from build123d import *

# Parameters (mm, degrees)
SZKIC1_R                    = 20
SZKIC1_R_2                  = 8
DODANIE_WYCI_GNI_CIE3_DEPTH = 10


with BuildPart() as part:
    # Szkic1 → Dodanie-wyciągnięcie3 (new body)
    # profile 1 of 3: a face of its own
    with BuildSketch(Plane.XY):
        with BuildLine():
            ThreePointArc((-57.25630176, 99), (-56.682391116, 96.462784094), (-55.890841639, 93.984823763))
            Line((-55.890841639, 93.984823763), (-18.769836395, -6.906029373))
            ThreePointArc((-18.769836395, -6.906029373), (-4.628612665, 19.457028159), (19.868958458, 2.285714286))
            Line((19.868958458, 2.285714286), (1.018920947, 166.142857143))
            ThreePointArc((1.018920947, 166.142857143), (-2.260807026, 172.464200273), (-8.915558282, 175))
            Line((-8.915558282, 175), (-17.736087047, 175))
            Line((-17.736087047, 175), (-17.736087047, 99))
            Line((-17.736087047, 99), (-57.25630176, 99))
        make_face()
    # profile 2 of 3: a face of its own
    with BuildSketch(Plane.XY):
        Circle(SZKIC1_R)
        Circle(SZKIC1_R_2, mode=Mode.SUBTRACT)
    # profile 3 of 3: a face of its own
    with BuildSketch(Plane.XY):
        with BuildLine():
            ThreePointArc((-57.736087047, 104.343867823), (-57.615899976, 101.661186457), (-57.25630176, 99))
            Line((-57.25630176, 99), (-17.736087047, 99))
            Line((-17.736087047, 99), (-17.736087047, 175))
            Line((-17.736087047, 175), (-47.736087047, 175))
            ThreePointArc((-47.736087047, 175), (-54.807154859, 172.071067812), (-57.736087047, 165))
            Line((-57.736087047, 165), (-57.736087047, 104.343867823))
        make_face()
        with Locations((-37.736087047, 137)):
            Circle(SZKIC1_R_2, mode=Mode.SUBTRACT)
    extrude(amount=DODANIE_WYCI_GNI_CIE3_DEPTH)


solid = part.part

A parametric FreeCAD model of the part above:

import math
import FreeCAD as App
import Part
import Sketcher

V = App.Vector

doc = App.newDocument("Part")
body = doc.addObject("PartDesign::Body", "Body")

# Sketch on XY plane
sketch1 = body.newObject("Sketcher::SketchObject", "Sketch")
sketch1.AttachmentSupport = (doc.getObject("XY_Plane"), [""])
sketch1.MapMode = "FlatFace"
sketch1.addGeometry(Part.ArcOfCircle(Part.Circle(V(-27.736087, 104.343868, 0), V(0, 0, 1), 30), math.radians(-169.739206), math.radians(-159.7998)), False)
sketch1.addGeometry(Part.LineSegment(V(-55.890842, 93.984824, 0), V(-18.769836, -6.906029, 0)), False)
sketch1.addGeometry(Part.ArcOfCircle(Part.Circle(V(0, 0, 0), V(0, 0, 1), 20), math.radians(-159.7998), math.radians(6.562428)), False)
sketch1.addGeometry(Part.LineSegment(V(19.868958, 2.285714, 0), V(1.018921, 166.142857, 0)), False)
sketch1.addGeometry(Part.ArcOfCircle(Part.Circle(V(-8.915558, 165, 0), V(0, 0, 1), 10), math.radians(6.562428), math.radians(90)), False)
sketch1.addGeometry(Part.LineSegment(V(-8.915558, 175, 0), V(-47.736087, 175, 0)), False)
sketch1.addGeometry(Part.ArcOfCircle(Part.Circle(V(-47.736087, 165, 0), V(0, 0, 1), 10), math.radians(90), math.radians(180)), False)
sketch1.addGeometry(Part.LineSegment(V(-57.736087, 165, 0), V(-57.736087, 104.343868, 0)), False)
sketch1.addGeometry(Part.ArcOfCircle(Part.Circle(V(-27.736087, 104.343868, 0), V(0, 0, 1), 30), math.radians(-180), math.radians(-169.739206)), False)
sketch1.addGeometry(Part.Circle(V(0, 0, 0), V(0, 0, 1), 8), False)
sketch1.addGeometry(Part.Circle(V(-37.736087, 137, 0), V(0, 0, 1), 8), False)
sketch1.addConstraint(Sketcher.Constraint("Coincident", 0, 2, 1, 1))
sketch1.addConstraint(Sketcher.Constraint("Coincident", 1, 2, 2, 1))
sketch1.addConstraint(Sketcher.Constraint("Coincident", 2, 2, 3, 1))
sketch1.addConstraint(Sketcher.Constraint("Coincident", 3, 2, 4, 1))
sketch1.addConstraint(Sketcher.Constraint("Coincident", 4, 2, 5, 1))
sketch1.addConstraint(Sketcher.Constraint("Coincident", 5, 2, 6, 1))
sketch1.addConstraint(Sketcher.Constraint("Coincident", 6, 2, 7, 1))
sketch1.addConstraint(Sketcher.Constraint("Coincident", 7, 2, 8, 1))
sketch1.addConstraint(Sketcher.Constraint("Coincident", 8, 2, 0, 1))
sketch1.addConstraint(Sketcher.Constraint("Horizontal", 5))
sketch1.addConstraint(Sketcher.Constraint("Vertical", 7))
sketch1.addConstraint(Sketcher.Constraint("Coincident", 2, 3, -1, 1))
sketch1.addConstraint(Sketcher.Constraint("Coincident", 9, 3, -1, 1))
sketch1.addConstraint(Sketcher.Constraint("Coincident", 8, 3, 0, 3))
sketch1.addConstraint(Sketcher.Constraint("Diameter", 9, 16.0))
sketch1.addConstraint(Sketcher.Constraint("Diameter", 10, 16.0))
sketch1.addConstraint(Sketcher.Constraint("Radius", 0, 30.0))
sketch1.addConstraint(Sketcher.Constraint("Radius", 2, 20.0))
sketch1.addConstraint(Sketcher.Constraint("Radius", 4, 10.0))
sketch1.addConstraint(Sketcher.Constraint("Radius", 6, 10.0))
sketch1.addConstraint(Sketcher.Constraint("DistanceY", -1, 1, 4, 3, 165.0))
sketch1.addConstraint(Sketcher.Constraint("DistanceY", -1, 1, 10, 3, 137.0))
sketch1.addConstraint(Sketcher.Constraint("DistanceY", -1, 1, 6, 2, 165.0))
sketch1.addConstraint(Sketcher.Constraint("DistanceY", -1, 1, 8, 2, 99.0))
sketch1.addConstraint(Sketcher.Constraint("DistanceX", 6, 3, 10, 3, 10.0))
sketch1.addConstraint(Sketcher.Constraint("DistanceX", 5, 2, 10, 3, 10.0))
sketch1.addConstraint(Sketcher.Constraint("DistanceX", 5, 2, 5, 1, 38.820529))
sketch1.addConstraint(Sketcher.Constraint("DistanceX", 8, 2, -1, 1, 57.256302))
sketch1.addConstraint(Sketcher.Constraint("Distance", 3, 164.937828))
sketch1.addConstraint(Sketcher.Constraint("DistanceY", 7, 2, 7, 1, 60.656132))
sketch1.addConstraint(Sketcher.Constraint("DistanceX", 4, 3, -1, 1, 8.915558))
sketch1.addConstraint(Sketcher.Constraint("DistanceX", 0, 2, -1, 1, 55.890842))
sketch1.addConstraint(Sketcher.Constraint("DistanceY", 1, 2, -1, 1, 6.906029))
sketch1.addConstraint(Sketcher.Constraint("DistanceX", -1, 1, 2, 2, 19.868958))
sketch1.addConstraint(Sketcher.Constraint("DistanceX", 4, 2, -1, 1, 8.915558))
pad1 = body.newObject("PartDesign::Pad", "Pad")
pad1.Profile = sketch1
pad1.Length = 10

doc.recompute()
